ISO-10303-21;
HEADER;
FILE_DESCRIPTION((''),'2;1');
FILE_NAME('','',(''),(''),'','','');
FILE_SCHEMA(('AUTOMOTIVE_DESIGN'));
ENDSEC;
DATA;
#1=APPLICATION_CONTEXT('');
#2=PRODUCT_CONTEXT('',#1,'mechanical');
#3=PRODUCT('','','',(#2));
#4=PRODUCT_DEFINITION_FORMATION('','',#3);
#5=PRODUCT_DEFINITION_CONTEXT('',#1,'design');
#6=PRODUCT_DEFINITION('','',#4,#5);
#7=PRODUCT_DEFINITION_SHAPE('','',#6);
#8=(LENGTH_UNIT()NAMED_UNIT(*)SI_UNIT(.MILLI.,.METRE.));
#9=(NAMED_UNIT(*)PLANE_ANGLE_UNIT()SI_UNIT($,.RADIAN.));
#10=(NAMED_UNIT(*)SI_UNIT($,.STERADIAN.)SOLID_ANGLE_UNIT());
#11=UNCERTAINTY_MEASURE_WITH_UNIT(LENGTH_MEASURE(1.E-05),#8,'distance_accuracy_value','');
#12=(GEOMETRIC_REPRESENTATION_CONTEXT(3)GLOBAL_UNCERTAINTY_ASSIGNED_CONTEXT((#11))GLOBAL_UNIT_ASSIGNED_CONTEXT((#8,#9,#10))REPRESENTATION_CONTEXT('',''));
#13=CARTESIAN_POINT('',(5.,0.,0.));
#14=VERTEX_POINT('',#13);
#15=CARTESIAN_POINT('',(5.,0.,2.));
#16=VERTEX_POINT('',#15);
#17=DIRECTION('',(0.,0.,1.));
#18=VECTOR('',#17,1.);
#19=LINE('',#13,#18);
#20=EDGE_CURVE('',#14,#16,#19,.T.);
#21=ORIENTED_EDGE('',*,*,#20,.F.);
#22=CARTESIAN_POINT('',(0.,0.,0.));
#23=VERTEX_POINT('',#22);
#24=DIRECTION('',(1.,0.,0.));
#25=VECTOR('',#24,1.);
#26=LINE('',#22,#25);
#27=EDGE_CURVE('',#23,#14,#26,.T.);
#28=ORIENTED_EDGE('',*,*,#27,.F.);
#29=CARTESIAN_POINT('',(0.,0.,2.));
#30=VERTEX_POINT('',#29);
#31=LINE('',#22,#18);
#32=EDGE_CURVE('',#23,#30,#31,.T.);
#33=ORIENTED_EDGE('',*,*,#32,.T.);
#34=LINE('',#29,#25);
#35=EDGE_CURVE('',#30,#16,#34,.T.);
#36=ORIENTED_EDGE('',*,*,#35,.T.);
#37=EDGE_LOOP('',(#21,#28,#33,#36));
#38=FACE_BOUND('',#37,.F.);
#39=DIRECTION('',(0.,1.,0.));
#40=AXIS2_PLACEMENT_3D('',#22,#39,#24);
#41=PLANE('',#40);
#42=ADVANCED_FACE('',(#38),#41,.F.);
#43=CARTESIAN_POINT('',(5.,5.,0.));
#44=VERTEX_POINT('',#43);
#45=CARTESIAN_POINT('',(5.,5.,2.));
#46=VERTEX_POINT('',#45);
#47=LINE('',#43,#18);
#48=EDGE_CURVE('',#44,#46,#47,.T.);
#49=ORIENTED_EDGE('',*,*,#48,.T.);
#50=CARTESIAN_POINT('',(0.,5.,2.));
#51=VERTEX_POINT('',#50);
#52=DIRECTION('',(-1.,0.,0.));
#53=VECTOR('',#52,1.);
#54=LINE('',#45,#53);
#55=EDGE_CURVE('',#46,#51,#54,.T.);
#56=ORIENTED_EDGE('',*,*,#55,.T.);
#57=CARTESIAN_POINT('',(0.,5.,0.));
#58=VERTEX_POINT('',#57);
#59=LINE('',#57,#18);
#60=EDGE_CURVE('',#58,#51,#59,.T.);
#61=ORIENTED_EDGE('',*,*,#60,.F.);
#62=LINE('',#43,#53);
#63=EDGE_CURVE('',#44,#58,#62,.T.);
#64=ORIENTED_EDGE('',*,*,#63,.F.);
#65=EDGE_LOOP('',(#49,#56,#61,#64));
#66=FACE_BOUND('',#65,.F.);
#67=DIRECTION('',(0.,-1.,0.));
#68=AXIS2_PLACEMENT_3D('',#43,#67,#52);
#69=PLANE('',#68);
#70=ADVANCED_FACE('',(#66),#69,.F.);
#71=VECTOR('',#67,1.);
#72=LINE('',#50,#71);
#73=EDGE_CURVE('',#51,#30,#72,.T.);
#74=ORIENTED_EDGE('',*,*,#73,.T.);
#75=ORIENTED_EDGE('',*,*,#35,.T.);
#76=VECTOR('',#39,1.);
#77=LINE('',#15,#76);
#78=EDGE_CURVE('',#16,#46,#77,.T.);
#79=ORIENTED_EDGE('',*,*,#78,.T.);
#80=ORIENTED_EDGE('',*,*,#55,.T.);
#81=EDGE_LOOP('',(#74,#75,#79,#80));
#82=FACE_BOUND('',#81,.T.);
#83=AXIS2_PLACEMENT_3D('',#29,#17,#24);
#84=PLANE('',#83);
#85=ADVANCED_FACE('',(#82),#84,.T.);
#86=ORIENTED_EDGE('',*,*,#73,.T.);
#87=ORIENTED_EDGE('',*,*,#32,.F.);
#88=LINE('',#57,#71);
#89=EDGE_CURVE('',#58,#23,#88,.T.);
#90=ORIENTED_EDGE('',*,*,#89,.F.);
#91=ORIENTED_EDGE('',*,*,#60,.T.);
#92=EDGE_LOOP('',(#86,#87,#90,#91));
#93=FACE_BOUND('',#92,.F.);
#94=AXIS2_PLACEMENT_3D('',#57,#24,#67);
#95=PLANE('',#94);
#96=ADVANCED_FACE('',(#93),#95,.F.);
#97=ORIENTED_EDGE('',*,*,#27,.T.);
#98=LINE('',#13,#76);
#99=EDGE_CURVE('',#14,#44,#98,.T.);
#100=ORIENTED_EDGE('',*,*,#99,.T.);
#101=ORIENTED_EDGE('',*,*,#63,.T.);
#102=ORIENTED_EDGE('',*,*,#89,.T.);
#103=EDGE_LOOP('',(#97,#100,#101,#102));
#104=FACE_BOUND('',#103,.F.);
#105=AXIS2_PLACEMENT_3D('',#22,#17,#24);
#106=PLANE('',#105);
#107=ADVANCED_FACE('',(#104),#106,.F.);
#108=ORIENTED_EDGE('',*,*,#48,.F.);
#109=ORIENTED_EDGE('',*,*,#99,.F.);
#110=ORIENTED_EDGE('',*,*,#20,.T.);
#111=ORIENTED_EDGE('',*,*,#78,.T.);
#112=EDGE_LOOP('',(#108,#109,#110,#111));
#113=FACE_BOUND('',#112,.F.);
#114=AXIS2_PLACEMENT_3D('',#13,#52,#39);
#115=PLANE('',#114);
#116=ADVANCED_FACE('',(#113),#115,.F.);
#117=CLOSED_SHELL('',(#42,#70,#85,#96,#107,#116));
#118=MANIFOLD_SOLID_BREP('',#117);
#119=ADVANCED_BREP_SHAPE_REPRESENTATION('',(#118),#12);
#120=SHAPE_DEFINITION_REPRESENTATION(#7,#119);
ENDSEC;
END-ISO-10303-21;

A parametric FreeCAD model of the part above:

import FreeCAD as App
import Part
import Sketcher
Q = App.Units.Quantity


def add_polygon(sketch, points):
    """Adds a closed chain of lines whose ends are joined by coincident constraints."""
    first, n = sketch.GeometryCount, len(points)
    for a, b in zip(points, points[1:] + points[:1]):
        sketch.addGeometry(Part.LineSegment(App.Vector(*a, 0), App.Vector(*b, 0)), False)
    for i in range(n):
        sketch.addConstraint(Sketcher.Constraint("Coincident", first + i, 2, first + (i + 1) % n, 1))

doc = App.newDocument("Part")
params = doc.addObject("Spreadsheet::Sheet", "Params")
for row, (alias, value) in enumerate([
    ("sketch1_width", "5 mm"),
    ("pad1_length", "2 mm"),
], start=1):
    params.set(f"A{row}", alias)
    params.set(f"B{row}", "=" + value)
    params.setAlias(f"B{row}", alias)

body = doc.addObject("PartDesign::Body", "Body")

sketch1 = body.newObject("Sketcher::SketchObject", "Sketch")
sketch1.AttachmentSupport = (doc.getObject("XY_Plane"), [""])
sketch1.MapMode = "FlatFace"
add_polygon(sketch1, [(0, 5), (0, 0), (5, 0), (5, 5)])
sketch1.addConstraint([
    Sketcher.Constraint("Vertical", 0),
    Sketcher.Constraint("Horizontal", 1),
    Sketcher.Constraint("Vertical", 2),
    Sketcher.Constraint("Horizontal", 3),
    Sketcher.Constraint("Coincident", 0, 2, -1, 1),
    Sketcher.Constraint("Equal", 3, 0),
    Sketcher.Constraint("DistanceX", 1, 1, 1, 2, Q("5 mm")),
])
sketch1.setExpression("Constraints[10]", "Params.sketch1_width")
pad1 = body.newObject("PartDesign::Pad", "Pad")
pad1.Profile = sketch1
pad1.setExpression("Length", "Params.pad1_length")

doc.recompute()
